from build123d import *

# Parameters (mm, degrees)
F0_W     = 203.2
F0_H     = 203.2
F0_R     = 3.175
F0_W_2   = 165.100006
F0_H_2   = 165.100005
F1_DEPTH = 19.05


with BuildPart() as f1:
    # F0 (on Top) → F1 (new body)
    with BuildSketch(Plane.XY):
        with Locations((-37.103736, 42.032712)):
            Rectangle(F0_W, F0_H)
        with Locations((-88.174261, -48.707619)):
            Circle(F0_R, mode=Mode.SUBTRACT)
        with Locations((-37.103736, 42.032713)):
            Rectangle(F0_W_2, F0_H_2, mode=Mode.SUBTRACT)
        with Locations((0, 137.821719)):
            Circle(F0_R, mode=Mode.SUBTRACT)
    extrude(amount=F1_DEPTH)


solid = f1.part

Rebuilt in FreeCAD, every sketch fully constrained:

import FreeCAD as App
import Part
import Sketcher
from FreeCAD import Vector
Q = App.Units.Quantity

doc = App.newDocument("Part")
body = doc.addObject("PartDesign::Body", "Body")

sketch1 = body.newObject("Sketcher::SketchObject", "Sketch")
sketch1.AttachmentSupport = (doc.getObject("XY_Plane"), [""])
sketch1.MapMode = "FlatFace"
sketch1.addGeometry(Part.LineSegment(Vector(-138.7, 143.6, 0), Vector(-138.7, -59.6, 0)), False)
sketch1.addGeometry(Part.LineSegment(Vector(-138.7, -59.6, 0), Vector(64.5, -59.6, 0)), False)
sketch1.addGeometry(Part.LineSegment(Vector(64.5, -59.6, 0), Vector(64.5, 143.6, 0)), False)
sketch1.addGeometry(Part.LineSegment(Vector(64.5, 143.6, 0), Vector(-138.7, 143.6, 0)), False)
sketch1.addGeometry(Part.Circle(Vector(-88.2, -48.7, 0), Vector(0, 0, 1), 3.2), False)
sketch1.addGeometry(Part.LineSegment(Vector(45.4, -40.5, 0), Vector(-119.7, -40.5, 0)), False)
sketch1.addGeometry(Part.LineSegment(Vector(-119.7, -40.5, 0), Vector(-119.7, 124.6, 0)), False)
sketch1.addGeometry(Part.LineSegment(Vector(-119.7, 124.6, 0), Vector(45.4, 124.6, 0)), False)
sketch1.addGeometry(Part.LineSegment(Vector(45.4, 124.6, 0), Vector(45.4, -40.5, 0)), False)
sketch1.addGeometry(Part.Circle(Vector(0, 137.8, 0), Vector(0, 0, 1), 3.2), False)
sketch1.addConstraint(Sketcher.Constraint("Coincident", 0, 2, 1, 1))
sketch1.addConstraint(Sketcher.Constraint("Coincident", 1, 2, 2, 1))
sketch1.addConstraint(Sketcher.Constraint("Coincident", 2, 2, 3, 1))
sketch1.addConstraint(Sketcher.Constraint("Coincident", 3, 2, 0, 1))
sketch1.addConstraint(Sketcher.Constraint("Coincident", 5, 2, 6, 1))
sketch1.addConstraint(Sketcher.Constraint("Coincident", 6, 2, 7, 1))
sketch1.addConstraint(Sketcher.Constraint("Coincident", 7, 2, 8, 1))
sketch1.addConstraint(Sketcher.Constraint("Coincident", 8, 2, 5, 1))
sketch1.addConstraint(Sketcher.Constraint("Vertical", 0))
sketch1.addConstraint(Sketcher.Constraint("Horizontal", 1))
sketch1.addConstraint(Sketcher.Constraint("Vertical", 2))
sketch1.addConstraint(Sketcher.Constraint("Horizontal", 3))
sketch1.addConstraint(Sketcher.Constraint("Horizontal", 5))
sketch1.addConstraint(Sketcher.Constraint("Vertical", 6))
sketch1.addConstraint(Sketcher.Constraint("Horizontal", 7))
sketch1.addConstraint(Sketcher.Constraint("Vertical", 8))
sketch1.addConstraint(Sketcher.Constraint("Equal", 4, 9))
sketch1.addConstraint(Sketcher.Constraint("PointOnObject", 9, 3, -2))
sketch1.addConstraint(Sketcher.Constraint("Equal", 3, 0))
sketch1.addConstraint(Sketcher.Constraint("Equal", 7, 6))
sketch1.addConstraint(Sketcher.Constraint("Diameter", 4, Q("0.25 in")))
sketch1.addConstraint(Sketcher.Constraint("DistanceX", 1, 1, 1, 2, Q("8 in")))
sketch1.addConstraint(Sketcher.Constraint("DistanceY", 6, 1, 6, 2, Q("6.5000002 in")))
sketch1.addConstraint(Sketcher.Constraint("DistanceX", 0, 2, 5, 2, Q("0.7499999 in")))
sketch1.addConstraint(Sketcher.Constraint("DistanceY", 0, 2, 5, 2, Q("0.7499999 in")))
sketch1.addConstraint(Sketcher.Constraint("DistanceX", 4, 3, -1, 1, 88.174261))
sketch1.addConstraint(Sketcher.Constraint("DistanceY", 4, 3, -1, 1, 48.707619))
sketch1.addConstraint(Sketcher.Constraint("DistanceY", -1, 1, 9, 3, 137.821719))
sketch1.addConstraint(Sketcher.Constraint("DistanceY", -1, 1, 2, 2, 143.632712))
sketch1.addConstraint(Sketcher.Constraint("DistanceX", 5, 2, -1, 1, 119.653739))
pad1 = body.newObject("PartDesign::Pad", "Pad")
pad1.Profile = sketch1
pad1.Length = Q("0.75 in")

doc.recompute()
